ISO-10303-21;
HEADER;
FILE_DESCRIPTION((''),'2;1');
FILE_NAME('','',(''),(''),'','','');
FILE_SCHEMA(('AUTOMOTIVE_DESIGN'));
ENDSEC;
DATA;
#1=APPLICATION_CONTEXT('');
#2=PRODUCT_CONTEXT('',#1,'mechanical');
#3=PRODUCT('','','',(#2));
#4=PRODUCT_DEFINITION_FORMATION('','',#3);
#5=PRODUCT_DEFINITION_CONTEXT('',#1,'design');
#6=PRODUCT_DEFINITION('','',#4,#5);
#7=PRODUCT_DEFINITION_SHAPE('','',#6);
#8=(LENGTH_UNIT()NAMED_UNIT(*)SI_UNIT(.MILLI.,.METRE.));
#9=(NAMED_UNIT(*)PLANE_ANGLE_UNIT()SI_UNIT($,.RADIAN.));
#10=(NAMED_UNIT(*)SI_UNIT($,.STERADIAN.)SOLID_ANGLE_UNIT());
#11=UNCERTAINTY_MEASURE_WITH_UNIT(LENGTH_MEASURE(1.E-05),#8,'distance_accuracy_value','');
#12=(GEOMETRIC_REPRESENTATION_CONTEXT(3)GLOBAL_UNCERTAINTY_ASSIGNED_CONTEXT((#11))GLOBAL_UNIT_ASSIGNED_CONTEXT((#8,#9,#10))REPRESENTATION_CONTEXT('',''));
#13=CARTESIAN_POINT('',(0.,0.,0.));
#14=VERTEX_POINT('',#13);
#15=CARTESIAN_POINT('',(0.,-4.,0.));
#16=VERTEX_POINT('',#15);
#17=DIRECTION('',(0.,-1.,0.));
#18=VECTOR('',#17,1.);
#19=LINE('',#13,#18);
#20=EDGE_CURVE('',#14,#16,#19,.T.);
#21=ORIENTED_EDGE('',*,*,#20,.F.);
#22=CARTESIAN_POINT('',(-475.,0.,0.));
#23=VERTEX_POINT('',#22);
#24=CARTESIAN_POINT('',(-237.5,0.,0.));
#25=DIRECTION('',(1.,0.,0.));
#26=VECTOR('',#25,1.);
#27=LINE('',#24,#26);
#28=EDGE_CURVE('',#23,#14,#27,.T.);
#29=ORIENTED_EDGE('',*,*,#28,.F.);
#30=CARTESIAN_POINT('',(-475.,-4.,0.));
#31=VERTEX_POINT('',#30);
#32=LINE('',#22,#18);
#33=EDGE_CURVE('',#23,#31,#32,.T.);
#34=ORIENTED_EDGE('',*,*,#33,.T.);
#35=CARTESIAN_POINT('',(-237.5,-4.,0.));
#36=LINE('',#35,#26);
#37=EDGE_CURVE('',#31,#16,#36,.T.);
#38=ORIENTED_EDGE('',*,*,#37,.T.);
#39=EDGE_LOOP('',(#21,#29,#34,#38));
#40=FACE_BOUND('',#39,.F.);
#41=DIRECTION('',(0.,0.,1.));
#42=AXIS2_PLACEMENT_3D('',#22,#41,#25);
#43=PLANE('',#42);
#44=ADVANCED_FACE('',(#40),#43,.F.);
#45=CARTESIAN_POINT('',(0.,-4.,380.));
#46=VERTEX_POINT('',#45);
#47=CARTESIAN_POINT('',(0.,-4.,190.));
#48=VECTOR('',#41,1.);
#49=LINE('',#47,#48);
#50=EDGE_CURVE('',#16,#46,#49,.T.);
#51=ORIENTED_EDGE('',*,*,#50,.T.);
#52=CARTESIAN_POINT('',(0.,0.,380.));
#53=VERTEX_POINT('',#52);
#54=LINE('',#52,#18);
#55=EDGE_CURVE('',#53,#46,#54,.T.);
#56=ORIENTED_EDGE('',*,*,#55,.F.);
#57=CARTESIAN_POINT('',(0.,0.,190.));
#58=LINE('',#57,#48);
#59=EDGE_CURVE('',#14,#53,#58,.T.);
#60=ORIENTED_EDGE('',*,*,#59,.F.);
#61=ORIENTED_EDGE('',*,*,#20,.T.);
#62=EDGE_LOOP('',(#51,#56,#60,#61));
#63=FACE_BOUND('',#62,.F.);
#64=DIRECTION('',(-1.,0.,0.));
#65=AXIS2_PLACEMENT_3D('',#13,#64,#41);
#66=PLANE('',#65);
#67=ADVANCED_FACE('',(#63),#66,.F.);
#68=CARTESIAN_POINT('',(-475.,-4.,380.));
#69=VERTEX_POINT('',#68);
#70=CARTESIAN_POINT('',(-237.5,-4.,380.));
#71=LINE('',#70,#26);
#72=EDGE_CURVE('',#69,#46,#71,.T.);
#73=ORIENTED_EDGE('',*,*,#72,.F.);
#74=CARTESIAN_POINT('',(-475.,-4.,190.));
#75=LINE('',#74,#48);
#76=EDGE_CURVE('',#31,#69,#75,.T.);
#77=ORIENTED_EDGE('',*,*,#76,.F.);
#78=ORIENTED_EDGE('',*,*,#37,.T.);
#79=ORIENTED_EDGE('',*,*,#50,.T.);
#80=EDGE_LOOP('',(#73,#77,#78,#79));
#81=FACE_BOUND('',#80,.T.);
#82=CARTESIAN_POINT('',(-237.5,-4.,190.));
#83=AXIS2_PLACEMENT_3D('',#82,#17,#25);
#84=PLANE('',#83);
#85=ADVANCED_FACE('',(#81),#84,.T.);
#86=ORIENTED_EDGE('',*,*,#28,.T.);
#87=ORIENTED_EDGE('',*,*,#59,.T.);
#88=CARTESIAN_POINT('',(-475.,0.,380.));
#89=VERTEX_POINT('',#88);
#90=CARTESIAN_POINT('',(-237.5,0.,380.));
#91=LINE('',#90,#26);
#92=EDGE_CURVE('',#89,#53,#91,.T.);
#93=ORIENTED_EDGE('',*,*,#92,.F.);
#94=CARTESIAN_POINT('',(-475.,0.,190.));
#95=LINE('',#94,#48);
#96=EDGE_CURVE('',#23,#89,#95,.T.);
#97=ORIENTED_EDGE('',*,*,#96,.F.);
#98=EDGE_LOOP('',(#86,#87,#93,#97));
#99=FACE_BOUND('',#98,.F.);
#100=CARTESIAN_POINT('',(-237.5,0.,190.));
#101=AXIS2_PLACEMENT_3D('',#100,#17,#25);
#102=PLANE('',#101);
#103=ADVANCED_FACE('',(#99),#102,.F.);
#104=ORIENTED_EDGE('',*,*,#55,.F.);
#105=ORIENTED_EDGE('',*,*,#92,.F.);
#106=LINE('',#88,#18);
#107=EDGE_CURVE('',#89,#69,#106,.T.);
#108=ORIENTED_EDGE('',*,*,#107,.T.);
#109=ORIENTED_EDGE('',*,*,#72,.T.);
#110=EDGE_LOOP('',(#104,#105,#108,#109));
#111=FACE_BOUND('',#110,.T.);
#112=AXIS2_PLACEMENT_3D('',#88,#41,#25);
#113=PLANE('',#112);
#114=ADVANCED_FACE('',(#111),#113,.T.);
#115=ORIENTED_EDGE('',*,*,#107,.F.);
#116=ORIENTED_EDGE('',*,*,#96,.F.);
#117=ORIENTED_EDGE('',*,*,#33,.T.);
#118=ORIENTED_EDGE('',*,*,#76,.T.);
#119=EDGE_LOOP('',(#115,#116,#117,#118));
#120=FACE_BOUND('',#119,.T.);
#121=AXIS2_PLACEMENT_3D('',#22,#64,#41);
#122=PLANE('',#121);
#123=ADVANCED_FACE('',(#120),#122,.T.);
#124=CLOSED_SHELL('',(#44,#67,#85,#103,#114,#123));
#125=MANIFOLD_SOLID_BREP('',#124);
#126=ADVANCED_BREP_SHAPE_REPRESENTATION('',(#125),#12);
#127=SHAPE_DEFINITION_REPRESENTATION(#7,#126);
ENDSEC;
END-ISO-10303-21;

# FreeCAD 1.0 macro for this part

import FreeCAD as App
import Part
import Sketcher
from FreeCAD import Vector

doc = App.newDocument("Part")
body = doc.addObject("PartDesign::Body", "Body")

sketch1 = body.newObject("Sketcher::SketchObject", "Sketch")
sketch1.AttachmentSupport = (doc.getObject("XZ_Plane"), [""])
sketch1.MapMode = "FlatFace"
sketch1.addGeometry([
    Part.LineSegment(Vector(-475, 380, 0), Vector(-475, 0, 0)),
    Part.LineSegment(Vector(-475, 0, 0), Vector(0, 0, 0)),
    Part.LineSegment(Vector(0, 0, 0), Vector(0, 380, 0)),
    Part.LineSegment(Vector(0, 380, 0), Vector(-475, 380, 0)),
], False)
sketch1.addConstraint([
    Sketcher.Constraint("Coincident", 0, 2, 1, 1),
    Sketcher.Constraint("Coincident", 1, 2, 2, 1),
    Sketcher.Constraint("Coincident", 2, 2, 3, 1),
    Sketcher.Constraint("Coincident", 3, 2, 0, 1),
    Sketcher.Constraint("Vertical", 0),
    Sketcher.Constraint("Horizontal", 1),
    Sketcher.Constraint("Vertical", 2),
    Sketcher.Constraint("Horizontal", 3),
    Sketcher.Constraint("Coincident", 1, 2, -1, 1),
    Sketcher.Constraint("DistanceX", 1, 1, 1, 2, 475.0),
    Sketcher.Constraint("DistanceY", 0, 2, 0, 1, 380.0),
])
pad1 = body.newObject("PartDesign::Pad", "Pad")
pad1.Profile = sketch1
pad1.Length = 4

doc.recompute()
